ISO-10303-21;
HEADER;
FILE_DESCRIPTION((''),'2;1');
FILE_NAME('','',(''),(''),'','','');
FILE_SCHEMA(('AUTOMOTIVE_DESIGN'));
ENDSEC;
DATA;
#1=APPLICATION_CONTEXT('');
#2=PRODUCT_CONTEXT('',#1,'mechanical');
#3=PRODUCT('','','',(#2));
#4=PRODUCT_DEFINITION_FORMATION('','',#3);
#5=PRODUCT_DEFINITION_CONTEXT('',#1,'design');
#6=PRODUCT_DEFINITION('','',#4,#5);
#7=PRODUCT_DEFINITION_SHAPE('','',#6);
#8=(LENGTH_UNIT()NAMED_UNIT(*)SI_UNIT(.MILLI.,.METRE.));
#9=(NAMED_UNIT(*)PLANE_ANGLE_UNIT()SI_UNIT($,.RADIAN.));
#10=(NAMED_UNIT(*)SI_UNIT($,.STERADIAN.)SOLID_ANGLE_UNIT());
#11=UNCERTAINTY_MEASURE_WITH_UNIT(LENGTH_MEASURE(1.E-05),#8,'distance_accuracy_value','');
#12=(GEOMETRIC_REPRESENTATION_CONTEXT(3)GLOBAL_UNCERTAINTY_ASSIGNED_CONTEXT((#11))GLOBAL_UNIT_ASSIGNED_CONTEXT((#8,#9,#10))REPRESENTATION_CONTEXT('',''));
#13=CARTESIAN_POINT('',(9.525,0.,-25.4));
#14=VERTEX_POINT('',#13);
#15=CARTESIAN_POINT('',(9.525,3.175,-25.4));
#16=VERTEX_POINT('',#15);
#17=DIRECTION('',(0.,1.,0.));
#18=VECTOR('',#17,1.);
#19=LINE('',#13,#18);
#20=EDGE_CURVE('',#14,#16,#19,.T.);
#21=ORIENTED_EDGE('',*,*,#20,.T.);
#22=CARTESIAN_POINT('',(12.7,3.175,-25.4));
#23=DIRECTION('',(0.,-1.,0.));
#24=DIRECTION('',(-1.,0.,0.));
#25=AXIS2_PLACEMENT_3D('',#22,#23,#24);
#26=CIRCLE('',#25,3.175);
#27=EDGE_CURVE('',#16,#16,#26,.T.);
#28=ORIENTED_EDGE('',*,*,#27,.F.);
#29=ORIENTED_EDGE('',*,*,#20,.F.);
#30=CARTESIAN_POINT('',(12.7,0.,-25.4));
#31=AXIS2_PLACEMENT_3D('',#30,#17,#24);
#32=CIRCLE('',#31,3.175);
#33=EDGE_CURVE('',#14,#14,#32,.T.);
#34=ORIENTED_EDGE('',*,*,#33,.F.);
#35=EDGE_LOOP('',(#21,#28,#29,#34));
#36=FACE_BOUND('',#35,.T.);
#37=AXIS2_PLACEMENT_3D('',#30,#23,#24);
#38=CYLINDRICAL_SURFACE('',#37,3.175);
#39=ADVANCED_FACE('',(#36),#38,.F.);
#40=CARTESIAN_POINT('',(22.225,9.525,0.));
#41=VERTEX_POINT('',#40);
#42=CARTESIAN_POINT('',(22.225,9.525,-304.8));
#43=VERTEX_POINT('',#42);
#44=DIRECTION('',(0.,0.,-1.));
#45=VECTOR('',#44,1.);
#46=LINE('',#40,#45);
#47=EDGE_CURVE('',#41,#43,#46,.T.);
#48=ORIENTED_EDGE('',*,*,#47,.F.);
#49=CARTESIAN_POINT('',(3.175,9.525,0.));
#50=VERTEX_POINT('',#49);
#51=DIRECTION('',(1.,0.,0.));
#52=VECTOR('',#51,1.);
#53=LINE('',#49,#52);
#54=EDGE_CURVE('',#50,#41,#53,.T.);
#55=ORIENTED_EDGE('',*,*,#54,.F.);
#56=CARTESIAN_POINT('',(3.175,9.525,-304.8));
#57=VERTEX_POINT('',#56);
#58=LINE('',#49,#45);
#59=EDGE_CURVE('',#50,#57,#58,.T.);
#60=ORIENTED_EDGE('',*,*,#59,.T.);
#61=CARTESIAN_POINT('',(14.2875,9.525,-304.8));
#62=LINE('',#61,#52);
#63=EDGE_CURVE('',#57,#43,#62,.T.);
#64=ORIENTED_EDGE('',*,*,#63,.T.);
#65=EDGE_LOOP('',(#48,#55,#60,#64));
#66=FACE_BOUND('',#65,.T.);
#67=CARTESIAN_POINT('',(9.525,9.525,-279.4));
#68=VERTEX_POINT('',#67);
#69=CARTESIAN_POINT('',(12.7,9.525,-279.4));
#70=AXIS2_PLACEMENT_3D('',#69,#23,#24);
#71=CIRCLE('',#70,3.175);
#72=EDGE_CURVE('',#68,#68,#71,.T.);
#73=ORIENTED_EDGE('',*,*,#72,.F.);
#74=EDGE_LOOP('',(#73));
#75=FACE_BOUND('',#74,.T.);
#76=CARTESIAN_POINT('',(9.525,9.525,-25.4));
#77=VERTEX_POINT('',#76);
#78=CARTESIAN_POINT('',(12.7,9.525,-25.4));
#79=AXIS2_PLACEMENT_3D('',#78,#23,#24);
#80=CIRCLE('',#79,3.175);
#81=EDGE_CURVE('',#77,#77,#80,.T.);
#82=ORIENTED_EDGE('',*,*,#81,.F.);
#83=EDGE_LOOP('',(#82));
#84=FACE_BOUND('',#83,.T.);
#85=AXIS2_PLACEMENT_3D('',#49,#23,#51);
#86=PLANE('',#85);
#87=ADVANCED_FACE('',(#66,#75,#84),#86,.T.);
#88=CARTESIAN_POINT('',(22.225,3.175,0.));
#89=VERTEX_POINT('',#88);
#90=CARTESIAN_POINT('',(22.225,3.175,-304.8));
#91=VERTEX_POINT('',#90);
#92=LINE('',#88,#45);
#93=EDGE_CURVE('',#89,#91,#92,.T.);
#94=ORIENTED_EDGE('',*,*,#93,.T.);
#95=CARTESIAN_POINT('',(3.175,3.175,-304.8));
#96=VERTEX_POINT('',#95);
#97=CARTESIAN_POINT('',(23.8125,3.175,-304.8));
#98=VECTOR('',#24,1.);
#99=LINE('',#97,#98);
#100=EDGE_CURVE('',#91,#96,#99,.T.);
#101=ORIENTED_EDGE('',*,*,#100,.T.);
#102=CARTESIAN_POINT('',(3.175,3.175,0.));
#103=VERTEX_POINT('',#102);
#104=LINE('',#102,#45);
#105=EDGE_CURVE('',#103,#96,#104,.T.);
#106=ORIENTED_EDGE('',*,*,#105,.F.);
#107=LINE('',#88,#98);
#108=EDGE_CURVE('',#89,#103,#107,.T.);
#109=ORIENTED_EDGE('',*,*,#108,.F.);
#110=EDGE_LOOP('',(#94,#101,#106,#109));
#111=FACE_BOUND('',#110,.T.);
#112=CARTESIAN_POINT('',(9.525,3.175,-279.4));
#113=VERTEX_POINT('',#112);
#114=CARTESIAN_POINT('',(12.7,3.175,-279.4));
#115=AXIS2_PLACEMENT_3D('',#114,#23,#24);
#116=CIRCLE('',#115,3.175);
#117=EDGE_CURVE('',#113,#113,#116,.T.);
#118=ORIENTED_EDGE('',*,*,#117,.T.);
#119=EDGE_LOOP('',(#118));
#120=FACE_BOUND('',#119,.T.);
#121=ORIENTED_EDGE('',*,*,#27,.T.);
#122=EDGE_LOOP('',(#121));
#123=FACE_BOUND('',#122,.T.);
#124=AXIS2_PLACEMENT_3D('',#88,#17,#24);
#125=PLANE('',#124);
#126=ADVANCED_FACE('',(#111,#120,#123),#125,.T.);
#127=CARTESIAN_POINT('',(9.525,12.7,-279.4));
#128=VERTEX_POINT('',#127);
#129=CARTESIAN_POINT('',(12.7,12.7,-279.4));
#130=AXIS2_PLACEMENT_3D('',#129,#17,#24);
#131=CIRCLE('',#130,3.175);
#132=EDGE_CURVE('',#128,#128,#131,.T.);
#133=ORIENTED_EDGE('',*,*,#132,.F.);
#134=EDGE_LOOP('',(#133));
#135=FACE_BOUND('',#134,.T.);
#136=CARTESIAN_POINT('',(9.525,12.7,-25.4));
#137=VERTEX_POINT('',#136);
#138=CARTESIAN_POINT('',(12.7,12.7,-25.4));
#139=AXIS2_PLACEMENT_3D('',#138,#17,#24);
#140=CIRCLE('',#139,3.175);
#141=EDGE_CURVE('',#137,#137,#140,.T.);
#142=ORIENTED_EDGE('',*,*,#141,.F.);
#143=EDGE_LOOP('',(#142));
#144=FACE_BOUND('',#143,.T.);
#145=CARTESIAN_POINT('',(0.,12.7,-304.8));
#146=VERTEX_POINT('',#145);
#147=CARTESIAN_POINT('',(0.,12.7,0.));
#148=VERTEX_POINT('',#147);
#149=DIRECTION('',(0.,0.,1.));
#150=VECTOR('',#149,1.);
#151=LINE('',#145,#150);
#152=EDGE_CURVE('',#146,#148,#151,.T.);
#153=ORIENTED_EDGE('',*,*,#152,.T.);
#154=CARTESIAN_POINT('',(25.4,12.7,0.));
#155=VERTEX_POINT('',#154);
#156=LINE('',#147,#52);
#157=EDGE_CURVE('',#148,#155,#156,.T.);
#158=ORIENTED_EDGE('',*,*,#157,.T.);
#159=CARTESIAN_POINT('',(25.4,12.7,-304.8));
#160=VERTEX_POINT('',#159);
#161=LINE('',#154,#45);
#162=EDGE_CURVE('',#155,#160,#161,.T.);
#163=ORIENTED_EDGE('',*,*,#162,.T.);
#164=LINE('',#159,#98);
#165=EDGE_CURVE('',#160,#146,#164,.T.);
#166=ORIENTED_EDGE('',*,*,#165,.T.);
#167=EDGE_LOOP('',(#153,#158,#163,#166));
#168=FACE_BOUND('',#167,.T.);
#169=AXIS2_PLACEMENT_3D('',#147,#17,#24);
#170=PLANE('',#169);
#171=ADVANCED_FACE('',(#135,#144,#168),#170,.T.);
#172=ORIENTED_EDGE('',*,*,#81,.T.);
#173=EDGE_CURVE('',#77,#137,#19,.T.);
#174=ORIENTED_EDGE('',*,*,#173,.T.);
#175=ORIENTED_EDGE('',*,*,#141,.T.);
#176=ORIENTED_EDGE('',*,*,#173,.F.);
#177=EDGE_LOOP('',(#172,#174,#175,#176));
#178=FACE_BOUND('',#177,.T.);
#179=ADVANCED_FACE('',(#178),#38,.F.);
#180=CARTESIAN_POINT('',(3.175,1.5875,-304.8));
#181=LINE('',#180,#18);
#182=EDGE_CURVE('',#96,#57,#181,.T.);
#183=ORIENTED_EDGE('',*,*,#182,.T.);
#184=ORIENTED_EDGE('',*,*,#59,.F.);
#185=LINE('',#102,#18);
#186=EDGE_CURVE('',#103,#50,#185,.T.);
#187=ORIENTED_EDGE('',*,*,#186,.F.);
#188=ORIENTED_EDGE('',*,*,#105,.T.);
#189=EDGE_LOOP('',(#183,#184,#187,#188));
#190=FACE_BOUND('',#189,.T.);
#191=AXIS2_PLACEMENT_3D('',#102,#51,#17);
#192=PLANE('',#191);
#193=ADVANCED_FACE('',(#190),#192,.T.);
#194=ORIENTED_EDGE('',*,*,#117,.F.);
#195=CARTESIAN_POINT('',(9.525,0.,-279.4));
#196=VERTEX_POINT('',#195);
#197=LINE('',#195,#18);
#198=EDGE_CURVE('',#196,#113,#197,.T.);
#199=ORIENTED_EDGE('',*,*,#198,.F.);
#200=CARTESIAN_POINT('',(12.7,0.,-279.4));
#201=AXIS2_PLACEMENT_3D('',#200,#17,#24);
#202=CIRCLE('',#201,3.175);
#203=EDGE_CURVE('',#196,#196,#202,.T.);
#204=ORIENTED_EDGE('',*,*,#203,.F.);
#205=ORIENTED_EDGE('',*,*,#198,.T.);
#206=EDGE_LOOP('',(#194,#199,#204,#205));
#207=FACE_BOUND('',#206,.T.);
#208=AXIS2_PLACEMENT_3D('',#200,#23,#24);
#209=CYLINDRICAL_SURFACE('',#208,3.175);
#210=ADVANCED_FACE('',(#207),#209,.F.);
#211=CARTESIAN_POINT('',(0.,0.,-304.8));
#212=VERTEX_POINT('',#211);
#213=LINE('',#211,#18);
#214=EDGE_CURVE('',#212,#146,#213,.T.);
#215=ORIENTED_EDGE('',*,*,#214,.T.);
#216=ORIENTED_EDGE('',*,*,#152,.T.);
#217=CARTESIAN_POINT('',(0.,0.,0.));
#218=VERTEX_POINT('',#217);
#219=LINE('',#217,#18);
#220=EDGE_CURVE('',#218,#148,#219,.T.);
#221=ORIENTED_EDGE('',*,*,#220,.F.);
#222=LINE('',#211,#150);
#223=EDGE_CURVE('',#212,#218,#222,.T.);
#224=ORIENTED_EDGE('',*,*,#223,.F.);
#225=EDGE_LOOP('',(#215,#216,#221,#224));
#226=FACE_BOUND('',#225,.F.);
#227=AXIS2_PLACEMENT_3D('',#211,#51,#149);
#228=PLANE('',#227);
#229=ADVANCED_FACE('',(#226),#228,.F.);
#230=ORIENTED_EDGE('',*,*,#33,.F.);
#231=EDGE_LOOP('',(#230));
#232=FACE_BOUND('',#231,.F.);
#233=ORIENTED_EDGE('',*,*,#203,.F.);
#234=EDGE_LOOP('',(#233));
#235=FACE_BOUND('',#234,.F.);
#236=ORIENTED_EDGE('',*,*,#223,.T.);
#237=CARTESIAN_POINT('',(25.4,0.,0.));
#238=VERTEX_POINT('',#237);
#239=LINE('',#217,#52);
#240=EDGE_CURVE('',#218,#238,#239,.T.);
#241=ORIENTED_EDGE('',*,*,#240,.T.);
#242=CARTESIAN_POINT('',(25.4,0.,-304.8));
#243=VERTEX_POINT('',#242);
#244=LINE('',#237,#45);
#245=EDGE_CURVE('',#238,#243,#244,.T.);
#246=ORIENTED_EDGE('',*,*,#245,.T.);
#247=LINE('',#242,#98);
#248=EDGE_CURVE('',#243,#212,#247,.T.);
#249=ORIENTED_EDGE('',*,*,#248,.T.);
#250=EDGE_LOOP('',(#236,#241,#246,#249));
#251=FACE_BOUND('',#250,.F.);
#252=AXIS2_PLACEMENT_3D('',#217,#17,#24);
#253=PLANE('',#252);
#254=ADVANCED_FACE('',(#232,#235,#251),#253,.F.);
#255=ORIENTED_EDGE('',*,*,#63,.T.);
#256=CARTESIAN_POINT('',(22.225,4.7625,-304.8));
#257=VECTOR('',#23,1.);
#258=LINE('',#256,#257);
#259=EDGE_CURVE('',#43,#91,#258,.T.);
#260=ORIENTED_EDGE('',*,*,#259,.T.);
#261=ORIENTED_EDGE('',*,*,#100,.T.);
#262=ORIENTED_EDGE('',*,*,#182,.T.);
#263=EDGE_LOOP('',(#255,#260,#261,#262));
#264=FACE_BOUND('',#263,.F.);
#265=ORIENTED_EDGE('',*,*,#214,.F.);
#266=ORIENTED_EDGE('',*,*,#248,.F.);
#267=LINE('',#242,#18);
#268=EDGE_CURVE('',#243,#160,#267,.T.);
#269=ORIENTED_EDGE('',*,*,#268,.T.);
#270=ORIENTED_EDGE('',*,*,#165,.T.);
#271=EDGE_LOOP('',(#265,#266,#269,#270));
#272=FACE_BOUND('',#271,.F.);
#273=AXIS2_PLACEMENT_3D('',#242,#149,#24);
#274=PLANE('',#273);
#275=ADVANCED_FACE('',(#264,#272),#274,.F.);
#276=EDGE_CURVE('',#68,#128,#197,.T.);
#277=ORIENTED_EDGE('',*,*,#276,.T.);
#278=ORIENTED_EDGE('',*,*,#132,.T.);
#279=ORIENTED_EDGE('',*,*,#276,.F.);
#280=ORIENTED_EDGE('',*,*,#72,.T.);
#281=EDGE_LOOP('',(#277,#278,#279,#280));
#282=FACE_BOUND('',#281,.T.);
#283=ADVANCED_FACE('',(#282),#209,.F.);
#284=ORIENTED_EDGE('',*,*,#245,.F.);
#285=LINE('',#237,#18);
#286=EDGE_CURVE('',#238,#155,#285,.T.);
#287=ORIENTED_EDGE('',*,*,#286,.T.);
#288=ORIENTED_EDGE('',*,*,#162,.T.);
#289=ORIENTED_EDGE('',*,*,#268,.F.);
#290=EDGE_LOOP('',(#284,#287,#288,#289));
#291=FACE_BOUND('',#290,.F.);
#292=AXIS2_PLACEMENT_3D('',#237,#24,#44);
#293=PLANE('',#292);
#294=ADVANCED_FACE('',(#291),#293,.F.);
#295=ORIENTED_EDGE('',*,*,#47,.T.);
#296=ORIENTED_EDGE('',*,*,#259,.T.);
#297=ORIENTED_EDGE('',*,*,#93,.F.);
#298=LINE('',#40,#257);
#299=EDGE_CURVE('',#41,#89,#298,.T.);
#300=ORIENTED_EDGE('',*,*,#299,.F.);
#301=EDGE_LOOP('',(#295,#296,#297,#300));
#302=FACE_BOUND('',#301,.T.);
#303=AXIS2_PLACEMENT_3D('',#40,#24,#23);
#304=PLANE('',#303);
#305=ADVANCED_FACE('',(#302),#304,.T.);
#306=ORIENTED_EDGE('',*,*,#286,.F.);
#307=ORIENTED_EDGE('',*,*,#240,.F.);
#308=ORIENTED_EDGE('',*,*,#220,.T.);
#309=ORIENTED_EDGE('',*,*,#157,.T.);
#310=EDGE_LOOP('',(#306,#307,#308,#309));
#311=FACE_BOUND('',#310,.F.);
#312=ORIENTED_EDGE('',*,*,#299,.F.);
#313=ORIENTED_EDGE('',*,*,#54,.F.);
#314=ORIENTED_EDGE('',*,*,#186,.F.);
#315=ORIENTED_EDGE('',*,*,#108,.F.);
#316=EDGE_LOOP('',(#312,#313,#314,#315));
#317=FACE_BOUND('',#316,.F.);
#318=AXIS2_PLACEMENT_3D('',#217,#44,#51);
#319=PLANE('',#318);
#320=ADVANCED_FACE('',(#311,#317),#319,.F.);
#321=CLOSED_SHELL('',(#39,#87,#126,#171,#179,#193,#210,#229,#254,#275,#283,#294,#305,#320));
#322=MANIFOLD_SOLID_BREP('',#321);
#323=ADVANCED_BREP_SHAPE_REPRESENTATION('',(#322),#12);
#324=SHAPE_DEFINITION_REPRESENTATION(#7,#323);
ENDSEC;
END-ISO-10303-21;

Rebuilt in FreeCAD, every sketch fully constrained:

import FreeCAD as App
import Part
import Sketcher
Q = App.Units.Quantity

doc = App.newDocument("Part")
body = doc.addObject("PartDesign::Body", "Body")

# Sketch on XZ plane
sketch1 = body.newObject("Sketcher::SketchObject", "Sketch")
sketch1.AttachmentSupport = (doc.getObject("XZ_Plane"), [""])
sketch1.MapMode = "FlatFace"
sketch1.addGeometry([
    Part.LineSegment(App.Vector(0, -304.8, 0), App.Vector(0, 0, 0)),  # 0
    Part.LineSegment(App.Vector(0, 0, 0), App.Vector(25.4, 0, 0)),  # 1
    Part.LineSegment(App.Vector(25.4, 0, 0), App.Vector(25.4, -304.8, 0)),  # 2
    Part.LineSegment(App.Vector(25.4, -304.8, 0), App.Vector(0, -304.8, 0)),  # 3
    Part.Circle(App.Vector(12.7, -279.4, 0), App.Vector(0, 0, 1), 3.2),  # 4
    Part.Circle(App.Vector(12.7, -25.4, 0), App.Vector(0, 0, 1), 3.2),  # 5
], False)
sketch1.addConstraint([
    Sketcher.Constraint("Coincident", 0, 2, 1, 1),
    Sketcher.Constraint("Coincident", 1, 2, 2, 1),
    Sketcher.Constraint("Coincident", 2, 2, 3, 1),
    Sketcher.Constraint("Coincident", 3, 2, 0, 1),
    Sketcher.Constraint("Vertical", 0),
    Sketcher.Constraint("Horizontal", 1),
    Sketcher.Constraint("Vertical", 2),
    Sketcher.Constraint("Horizontal", 3),
    Sketcher.Constraint("Coincident", 0, 2, -1, 1),
    Sketcher.Constraint("Equal", 4, 5),
    Sketcher.Constraint("Vertical", 4, 3, 5, 3),
    Sketcher.Constraint("Diameter", 4, Q("0.25 in")),
    Sketcher.Constraint("DistanceX", 1, 1, 1, 2, Q("1 in")),
    Sketcher.Constraint("DistanceY", 0, 1, 0, 2, Q("12 in")),
    Sketcher.Constraint("DistanceY", 5, 3, -1, 1, Q("1 in")),
    Sketcher.Constraint("DistanceY", 2, 2, 4, 3, Q("1 in")),
    Sketcher.Constraint("DistanceX", -1, 1, 4, 3, Q("0.5 in")),
])
pad1 = body.newObject("PartDesign::Pad", "Pad")
pad1.Profile = sketch1
pad1.Length = Q("0.5 in")
pad1.Reversed = True

# Sketch on XY plane
sketch2 = body.newObject("Sketcher::SketchObject", "Sketch001")
sketch2.AttachmentSupport = (doc.getObject("XY_Plane"), [""])
sketch2.MapMode = "FlatFace"
sketch2.addGeometry([
    Part.LineSegment(App.Vector(3, 3, 0), App.Vector(22, 3, 0)),
    Part.LineSegment(App.Vector(22, 3, 0), App.Vector(22, 10, 0)),
    Part.LineSegment(App.Vector(22, 10, 0), App.Vector(3, 10, 0)),
    Part.LineSegment(App.Vector(3, 10, 0), App.Vector(3, 3, 0)),
], False)
sketch2.addConstraint([
    Sketcher.Constraint("Coincident", 0, 2, 1, 1),
    Sketcher.Constraint("Coincident", 1, 2, 2, 1),
    Sketcher.Constraint("Coincident", 2, 2, 3, 1),
    Sketcher.Constraint("Coincident", 3, 2, 0, 1),
    Sketcher.Constraint("Horizontal", 0),
    Sketcher.Constraint("Vertical", 1),
    Sketcher.Constraint("Horizontal", 2),
    Sketcher.Constraint("Vertical", 3),
    Sketcher.Constraint("DistanceY", -1, 1, 0, 2, Q("0.125 in")),
    Sketcher.Constraint("DistanceX", -1, 1, 2, 2, Q("0.125 in")),
    Sketcher.Constraint("DistanceX", 0, 1, 0, 2, Q("0.75 in")),
    Sketcher.Constraint("DistanceY", 1, 1, 1, 2, Q("0.25 in")),
])
pocket1 = body.newObject("PartDesign::Pocket", "Pocket")
pocket1.Profile = sketch2
pocket1.Type = "ThroughAll"

doc.recompute()
